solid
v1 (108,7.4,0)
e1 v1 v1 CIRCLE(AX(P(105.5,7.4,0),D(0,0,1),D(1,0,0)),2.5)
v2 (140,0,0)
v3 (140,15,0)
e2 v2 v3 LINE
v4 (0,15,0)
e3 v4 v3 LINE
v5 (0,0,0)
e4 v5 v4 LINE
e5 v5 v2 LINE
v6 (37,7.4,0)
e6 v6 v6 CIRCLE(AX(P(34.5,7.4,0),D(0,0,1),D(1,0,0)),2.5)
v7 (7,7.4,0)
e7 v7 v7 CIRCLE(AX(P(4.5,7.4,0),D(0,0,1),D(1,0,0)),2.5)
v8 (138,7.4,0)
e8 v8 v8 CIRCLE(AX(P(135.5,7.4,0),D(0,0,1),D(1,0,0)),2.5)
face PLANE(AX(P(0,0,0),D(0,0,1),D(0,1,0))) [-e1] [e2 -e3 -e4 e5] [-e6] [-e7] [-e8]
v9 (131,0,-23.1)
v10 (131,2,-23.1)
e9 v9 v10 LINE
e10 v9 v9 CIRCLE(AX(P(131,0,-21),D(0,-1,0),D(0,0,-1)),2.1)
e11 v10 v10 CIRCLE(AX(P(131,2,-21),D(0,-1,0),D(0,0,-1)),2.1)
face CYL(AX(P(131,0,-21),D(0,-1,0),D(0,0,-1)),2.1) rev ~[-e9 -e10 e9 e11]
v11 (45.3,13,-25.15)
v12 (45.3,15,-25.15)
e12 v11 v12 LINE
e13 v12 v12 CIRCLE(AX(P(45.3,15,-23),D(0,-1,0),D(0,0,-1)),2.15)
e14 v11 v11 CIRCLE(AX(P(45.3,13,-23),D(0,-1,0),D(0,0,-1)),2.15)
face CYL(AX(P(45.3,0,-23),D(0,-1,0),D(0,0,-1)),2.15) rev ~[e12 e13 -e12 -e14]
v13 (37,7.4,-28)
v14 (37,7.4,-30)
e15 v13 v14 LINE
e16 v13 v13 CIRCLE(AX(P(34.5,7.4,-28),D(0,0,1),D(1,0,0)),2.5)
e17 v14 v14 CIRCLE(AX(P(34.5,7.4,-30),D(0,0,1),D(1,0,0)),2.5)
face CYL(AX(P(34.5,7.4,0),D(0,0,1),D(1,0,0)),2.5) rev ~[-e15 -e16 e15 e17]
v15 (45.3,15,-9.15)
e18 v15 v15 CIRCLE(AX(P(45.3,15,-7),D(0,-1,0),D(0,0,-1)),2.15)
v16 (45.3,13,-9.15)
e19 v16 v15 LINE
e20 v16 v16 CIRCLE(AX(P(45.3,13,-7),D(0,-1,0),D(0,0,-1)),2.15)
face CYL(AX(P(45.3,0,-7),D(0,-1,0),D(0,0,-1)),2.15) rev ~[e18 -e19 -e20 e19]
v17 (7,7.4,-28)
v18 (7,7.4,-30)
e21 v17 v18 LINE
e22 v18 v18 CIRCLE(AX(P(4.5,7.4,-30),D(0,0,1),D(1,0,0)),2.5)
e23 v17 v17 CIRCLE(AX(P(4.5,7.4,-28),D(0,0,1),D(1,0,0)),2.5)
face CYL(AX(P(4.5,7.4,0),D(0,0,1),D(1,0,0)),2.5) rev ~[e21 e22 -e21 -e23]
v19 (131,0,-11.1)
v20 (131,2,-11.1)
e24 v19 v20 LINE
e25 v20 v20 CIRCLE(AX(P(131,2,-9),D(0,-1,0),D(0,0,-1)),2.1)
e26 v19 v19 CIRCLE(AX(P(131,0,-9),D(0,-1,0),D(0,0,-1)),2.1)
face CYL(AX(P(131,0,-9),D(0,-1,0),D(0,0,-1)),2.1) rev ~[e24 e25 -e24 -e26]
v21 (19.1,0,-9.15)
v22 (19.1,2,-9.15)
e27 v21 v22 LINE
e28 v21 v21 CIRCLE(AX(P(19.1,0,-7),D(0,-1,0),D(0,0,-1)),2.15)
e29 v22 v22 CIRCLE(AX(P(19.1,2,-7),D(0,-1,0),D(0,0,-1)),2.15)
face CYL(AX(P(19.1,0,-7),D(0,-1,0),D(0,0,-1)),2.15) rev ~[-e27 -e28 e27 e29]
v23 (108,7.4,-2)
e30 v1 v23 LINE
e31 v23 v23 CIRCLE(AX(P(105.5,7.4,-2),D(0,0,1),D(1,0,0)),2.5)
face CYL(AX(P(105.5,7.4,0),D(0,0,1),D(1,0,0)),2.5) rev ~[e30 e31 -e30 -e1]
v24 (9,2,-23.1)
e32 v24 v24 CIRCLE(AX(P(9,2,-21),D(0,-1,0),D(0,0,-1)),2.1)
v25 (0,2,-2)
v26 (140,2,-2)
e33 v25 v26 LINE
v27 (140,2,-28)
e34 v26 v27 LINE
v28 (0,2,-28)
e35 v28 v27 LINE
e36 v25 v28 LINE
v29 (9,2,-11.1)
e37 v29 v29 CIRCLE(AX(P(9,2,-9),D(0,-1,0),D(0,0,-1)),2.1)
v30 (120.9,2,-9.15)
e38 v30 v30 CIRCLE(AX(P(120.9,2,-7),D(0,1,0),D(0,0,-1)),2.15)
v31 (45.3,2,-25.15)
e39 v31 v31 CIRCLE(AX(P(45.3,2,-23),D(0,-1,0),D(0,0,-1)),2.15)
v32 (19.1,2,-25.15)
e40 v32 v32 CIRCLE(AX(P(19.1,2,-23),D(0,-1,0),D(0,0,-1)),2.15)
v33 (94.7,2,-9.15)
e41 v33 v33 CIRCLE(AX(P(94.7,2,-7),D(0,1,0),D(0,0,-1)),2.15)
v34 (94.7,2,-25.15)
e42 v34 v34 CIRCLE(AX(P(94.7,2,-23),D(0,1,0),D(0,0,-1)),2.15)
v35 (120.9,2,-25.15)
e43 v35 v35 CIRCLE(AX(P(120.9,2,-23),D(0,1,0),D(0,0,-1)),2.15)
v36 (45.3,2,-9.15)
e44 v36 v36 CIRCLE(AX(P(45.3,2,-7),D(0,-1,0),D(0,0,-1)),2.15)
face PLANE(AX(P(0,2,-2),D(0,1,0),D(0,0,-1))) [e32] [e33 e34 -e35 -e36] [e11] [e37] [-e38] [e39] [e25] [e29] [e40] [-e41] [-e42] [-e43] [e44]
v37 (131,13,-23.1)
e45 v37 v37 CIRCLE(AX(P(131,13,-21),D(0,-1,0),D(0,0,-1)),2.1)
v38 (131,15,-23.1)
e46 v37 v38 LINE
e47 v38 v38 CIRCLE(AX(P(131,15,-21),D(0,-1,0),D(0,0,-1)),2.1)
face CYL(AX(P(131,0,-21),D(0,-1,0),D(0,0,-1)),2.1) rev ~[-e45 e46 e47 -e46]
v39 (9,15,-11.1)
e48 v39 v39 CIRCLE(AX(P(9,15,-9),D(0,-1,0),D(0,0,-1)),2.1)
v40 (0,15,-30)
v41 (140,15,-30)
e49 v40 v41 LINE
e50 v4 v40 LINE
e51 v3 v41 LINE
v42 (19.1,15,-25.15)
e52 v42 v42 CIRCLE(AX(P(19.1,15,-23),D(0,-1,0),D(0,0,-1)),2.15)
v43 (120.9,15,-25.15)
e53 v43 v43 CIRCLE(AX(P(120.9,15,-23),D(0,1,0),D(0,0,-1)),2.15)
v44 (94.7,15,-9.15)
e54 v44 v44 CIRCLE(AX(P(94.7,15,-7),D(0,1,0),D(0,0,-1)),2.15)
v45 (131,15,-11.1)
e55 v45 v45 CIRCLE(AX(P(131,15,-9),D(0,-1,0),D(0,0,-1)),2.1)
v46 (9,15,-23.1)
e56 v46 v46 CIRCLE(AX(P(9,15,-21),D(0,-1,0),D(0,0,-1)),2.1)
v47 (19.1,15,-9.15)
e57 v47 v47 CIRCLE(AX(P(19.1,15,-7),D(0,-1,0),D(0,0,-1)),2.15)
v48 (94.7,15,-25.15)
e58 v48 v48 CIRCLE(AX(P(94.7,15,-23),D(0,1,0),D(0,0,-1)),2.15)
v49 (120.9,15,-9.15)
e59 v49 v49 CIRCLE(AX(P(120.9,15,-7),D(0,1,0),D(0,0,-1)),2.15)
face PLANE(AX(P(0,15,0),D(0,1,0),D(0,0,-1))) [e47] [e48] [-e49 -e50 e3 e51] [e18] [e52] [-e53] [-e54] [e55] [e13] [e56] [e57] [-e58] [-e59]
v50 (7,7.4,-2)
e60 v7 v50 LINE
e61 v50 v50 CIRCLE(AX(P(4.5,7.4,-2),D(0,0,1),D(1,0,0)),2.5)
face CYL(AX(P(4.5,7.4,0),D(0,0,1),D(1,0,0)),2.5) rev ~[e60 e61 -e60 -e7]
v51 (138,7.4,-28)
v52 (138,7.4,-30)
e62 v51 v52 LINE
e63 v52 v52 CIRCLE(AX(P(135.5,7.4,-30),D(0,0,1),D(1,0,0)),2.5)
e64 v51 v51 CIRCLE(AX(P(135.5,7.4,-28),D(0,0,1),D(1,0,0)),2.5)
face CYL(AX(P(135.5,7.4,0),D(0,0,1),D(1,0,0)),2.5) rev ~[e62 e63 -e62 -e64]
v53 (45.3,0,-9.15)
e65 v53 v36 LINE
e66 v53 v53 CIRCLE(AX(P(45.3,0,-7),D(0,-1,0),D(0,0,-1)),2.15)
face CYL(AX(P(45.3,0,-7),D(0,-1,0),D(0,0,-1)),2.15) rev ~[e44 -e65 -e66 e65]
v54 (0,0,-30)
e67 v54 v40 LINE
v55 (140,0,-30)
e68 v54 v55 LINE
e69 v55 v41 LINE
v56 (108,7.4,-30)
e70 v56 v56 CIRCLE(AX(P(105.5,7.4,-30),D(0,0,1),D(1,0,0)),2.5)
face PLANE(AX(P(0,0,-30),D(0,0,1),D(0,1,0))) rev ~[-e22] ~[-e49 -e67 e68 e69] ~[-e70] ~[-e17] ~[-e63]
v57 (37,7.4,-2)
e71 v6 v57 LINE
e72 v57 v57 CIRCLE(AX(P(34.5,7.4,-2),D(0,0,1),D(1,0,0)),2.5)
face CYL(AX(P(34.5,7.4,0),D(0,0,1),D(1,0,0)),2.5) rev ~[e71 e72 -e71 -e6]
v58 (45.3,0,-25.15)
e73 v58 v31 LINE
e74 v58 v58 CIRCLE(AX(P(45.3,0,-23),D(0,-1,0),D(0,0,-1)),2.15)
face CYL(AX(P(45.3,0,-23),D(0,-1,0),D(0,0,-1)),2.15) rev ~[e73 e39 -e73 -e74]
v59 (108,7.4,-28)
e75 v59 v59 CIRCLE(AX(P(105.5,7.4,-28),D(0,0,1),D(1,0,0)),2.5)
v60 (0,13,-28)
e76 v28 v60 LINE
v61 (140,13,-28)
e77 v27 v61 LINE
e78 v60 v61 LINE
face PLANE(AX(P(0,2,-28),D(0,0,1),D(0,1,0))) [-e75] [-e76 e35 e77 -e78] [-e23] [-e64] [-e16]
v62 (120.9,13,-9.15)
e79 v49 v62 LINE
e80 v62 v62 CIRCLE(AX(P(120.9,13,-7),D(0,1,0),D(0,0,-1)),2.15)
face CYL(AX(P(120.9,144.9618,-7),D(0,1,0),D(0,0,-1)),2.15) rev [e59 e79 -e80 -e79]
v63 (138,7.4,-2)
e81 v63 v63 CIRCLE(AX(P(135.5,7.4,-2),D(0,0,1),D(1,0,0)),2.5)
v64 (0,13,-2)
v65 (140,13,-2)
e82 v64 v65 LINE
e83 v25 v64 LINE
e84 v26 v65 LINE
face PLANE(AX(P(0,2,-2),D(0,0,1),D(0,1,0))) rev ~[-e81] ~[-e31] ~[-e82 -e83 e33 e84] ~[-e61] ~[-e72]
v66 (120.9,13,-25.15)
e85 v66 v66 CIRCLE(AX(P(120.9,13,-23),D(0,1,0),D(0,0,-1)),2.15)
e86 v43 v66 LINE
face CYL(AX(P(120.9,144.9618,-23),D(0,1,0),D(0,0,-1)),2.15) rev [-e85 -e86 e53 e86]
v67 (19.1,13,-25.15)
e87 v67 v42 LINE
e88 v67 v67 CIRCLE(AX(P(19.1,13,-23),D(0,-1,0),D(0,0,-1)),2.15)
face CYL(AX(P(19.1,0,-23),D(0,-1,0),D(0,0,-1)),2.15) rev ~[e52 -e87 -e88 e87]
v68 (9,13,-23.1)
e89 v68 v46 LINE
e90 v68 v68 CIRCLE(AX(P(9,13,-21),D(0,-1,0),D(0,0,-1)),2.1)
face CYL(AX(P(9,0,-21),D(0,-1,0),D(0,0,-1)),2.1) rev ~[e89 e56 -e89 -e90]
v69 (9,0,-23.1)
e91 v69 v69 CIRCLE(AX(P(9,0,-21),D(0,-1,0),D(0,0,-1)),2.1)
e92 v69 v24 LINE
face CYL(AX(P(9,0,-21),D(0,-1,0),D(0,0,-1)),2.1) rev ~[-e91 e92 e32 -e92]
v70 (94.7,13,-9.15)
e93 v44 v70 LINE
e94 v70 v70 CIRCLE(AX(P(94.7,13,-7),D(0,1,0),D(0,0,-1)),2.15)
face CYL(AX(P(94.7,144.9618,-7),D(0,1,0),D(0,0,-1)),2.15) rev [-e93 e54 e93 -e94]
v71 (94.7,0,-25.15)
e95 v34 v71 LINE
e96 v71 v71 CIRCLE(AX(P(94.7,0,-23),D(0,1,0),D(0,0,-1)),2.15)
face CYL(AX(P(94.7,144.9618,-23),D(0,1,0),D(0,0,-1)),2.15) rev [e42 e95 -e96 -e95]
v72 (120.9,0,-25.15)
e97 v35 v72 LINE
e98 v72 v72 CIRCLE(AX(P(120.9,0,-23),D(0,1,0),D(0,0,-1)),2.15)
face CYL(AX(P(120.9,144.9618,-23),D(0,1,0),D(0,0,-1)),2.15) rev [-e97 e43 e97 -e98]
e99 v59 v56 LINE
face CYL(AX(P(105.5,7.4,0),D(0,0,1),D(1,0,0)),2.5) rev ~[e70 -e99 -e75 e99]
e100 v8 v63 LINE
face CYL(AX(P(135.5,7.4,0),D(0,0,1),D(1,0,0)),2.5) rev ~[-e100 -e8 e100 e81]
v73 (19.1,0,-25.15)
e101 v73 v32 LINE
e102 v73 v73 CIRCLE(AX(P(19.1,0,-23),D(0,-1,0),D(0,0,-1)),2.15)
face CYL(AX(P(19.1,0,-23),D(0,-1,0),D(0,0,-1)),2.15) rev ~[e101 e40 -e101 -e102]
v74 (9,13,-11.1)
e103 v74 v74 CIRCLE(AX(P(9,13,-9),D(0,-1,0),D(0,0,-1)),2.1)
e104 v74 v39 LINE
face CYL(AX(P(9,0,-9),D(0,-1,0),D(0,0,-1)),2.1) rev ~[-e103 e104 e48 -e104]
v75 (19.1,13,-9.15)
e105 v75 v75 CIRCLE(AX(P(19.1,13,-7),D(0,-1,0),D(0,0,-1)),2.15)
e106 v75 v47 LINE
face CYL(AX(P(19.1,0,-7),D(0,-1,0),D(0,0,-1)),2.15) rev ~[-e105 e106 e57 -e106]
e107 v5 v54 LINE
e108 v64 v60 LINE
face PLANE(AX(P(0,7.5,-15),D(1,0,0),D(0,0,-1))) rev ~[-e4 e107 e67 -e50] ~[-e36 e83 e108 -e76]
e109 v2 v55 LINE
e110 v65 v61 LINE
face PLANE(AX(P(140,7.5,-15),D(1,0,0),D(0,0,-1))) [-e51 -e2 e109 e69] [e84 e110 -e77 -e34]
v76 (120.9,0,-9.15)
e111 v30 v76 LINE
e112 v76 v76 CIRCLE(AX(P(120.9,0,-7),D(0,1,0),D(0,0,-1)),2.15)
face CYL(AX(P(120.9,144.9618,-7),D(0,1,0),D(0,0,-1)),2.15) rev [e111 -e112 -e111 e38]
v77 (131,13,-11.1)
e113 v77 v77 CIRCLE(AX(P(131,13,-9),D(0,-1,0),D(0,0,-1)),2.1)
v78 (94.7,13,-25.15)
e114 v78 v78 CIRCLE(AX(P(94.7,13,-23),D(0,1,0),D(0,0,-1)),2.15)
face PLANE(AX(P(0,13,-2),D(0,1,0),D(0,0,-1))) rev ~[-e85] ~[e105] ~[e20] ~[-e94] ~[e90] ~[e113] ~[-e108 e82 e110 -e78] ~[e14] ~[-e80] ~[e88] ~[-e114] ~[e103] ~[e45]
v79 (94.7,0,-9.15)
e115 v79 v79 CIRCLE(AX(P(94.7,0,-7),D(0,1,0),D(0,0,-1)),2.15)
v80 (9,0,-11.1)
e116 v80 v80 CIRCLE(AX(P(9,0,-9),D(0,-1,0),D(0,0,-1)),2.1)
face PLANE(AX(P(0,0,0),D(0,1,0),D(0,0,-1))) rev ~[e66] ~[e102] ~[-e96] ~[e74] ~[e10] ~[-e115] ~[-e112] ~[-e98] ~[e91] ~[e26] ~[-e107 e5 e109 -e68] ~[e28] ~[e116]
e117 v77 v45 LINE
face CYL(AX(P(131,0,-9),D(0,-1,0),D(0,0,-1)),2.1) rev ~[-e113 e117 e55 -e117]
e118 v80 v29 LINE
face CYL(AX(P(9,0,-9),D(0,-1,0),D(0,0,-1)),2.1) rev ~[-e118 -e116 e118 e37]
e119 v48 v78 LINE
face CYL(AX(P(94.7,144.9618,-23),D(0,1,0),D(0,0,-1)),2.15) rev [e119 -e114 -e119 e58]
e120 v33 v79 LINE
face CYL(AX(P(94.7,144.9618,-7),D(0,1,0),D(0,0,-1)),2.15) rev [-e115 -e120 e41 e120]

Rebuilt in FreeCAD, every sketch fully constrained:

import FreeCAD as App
import Part
import Sketcher
Q = App.Units.Quantity


def add_polygon(sketch, points):
    """Adds a closed chain of lines whose ends are joined by coincident constraints."""
    first, n = sketch.GeometryCount, len(points)
    for a, b in zip(points, points[1:] + points[:1]):
        sketch.addGeometry(Part.LineSegment(App.Vector(*a, 0), App.Vector(*b, 0)), False)
    for i in range(n):
        sketch.addConstraint(Sketcher.Constraint("Coincident", first + i, 2, first + (i + 1) % n, 1))

doc = App.newDocument("Part")
params = doc.addObject("Spreadsheet::Sheet", "Params")
for row, (alias, value) in enumerate([
    ("sketch1_width", "15 mm"),
    ("sketch1_width2", "11 mm"),
    ("sketch1_height", "30 mm"),
    ("sketch1_height2", "26 mm"),
    ("pad1_length", "140 mm"),
    ("sketch2_diameter", "4.3 mm"),
    ("sketch3_diameter", "4.3 mm"),
    ("sketch4_diameter", "4.2 mm"),
    ("sketch5_diameter", "4.2 mm"),
    ("sketch6_diameter", "5 mm"),
], start=1):
    params.set(f"A{row}", alias)
    params.set(f"B{row}", "=" + value)
    params.setAlias(f"B{row}", alias)

body = doc.addObject("PartDesign::Body", "Body")

# Sketch on YZ plane
sketch1 = body.newObject("Sketcher::SketchObject", "Sketch")
sketch1.AttachmentSupport = (doc.getObject("YZ_Plane"), [""])
sketch1.MapMode = "FlatFace"
add_polygon(sketch1, [(15, 0), (0, 0), (0, -30), (15, -30)])  # lines 0-3
add_polygon(sketch1, [(2, -28), (2, -2), (13, -2), (13, -28)])  # lines 4-7
sketch1.addConstraint([
    Sketcher.Constraint("Horizontal", 0),
    Sketcher.Constraint("Vertical", 1),
    Sketcher.Constraint("Horizontal", 2),
    Sketcher.Constraint("Vertical", 3),
    Sketcher.Constraint("Vertical", 4),
    Sketcher.Constraint("Horizontal", 5),
    Sketcher.Constraint("Vertical", 6),
    Sketcher.Constraint("Horizontal", 7),
    Sketcher.Constraint("Coincident", 0, 2, -1, 1),
    Sketcher.Constraint("DistanceX", 0, 2, 0, 1, Q("15 mm")),
    Sketcher.Constraint("DistanceX", 5, 1, 5, 2, Q("11 mm")),
    Sketcher.Constraint("DistanceY", 1, 2, 1, 1, Q("30 mm")),
    Sketcher.Constraint("DistanceY", 4, 1, 4, 2, Q("26 mm")),
    Sketcher.Constraint("DistanceX", -1, 1, 4, 2, Q("2 mm")),
    Sketcher.Constraint("DistanceY", 4, 2, -1, 1, Q("2 mm")),
])
sketch1.setExpression("Constraints[17]", "Params.sketch1_width")
sketch1.setExpression("Constraints[18]", "Params.sketch1_width2")
sketch1.setExpression("Constraints[19]", "Params.sketch1_height")
sketch1.setExpression("Constraints[20]", "Params.sketch1_height2")
pad1 = body.newObject("PartDesign::Pad", "Pad")
pad1.Profile = sketch1
pad1.setExpression("Length", "Params.pad1_length")

# Sketch on XZ plane
sketch2 = body.newObject("Sketcher::SketchObject", "Sketch001")
sketch2.AttachmentSupport = (doc.getObject("XZ_Plane"), [""])
sketch2.MapMode = "FlatFace"
sketch2.addGeometry([
    Part.Circle(App.Vector(19.1, -7, 0), App.Vector(0, 0, 1), 2.15),
    Part.Circle(App.Vector(19.1, -23, 0), App.Vector(0, 0, 1), 2.15),
    Part.Circle(App.Vector(45.3, -23, 0), App.Vector(0, 0, 1), 2.15),
    Part.Circle(App.Vector(45.3, -7, 0), App.Vector(0, 0, 1), 2.15),
], False)
sketch2.addConstraint([
    Sketcher.Constraint("Equal", 0, 1),
    Sketcher.Constraint("Equal", 1, 2),
    Sketcher.Constraint("Equal", 2, 3),
    Sketcher.Constraint("Horizontal", 1, 3, 2, 3),
    Sketcher.Constraint("Horizontal", 0, 3, 3, 3),
    Sketcher.Constraint("Vertical", 0, 3, 1, 3),
    Sketcher.Constraint("Vertical", 2, 3, 3, 3),
    Sketcher.Constraint("Diameter", 0, Q("4.3 mm")),
    Sketcher.Constraint("DistanceY", 0, 3, -1, 1, Q("7 mm")),
    Sketcher.Constraint("DistanceY", 1, 3, -1, 1, Q("23 mm")),
    Sketcher.Constraint("DistanceX", -1, 1, 0, 3, Q("19.1 mm")),
    Sketcher.Constraint("DistanceX", -1, 1, 2, 3, Q("45.3 mm")),
])
sketch2.setExpression("Constraints[7]", "Params.sketch2_diameter")
pocket1 = body.newObject("PartDesign::Pocket", "Pocket")
pocket1.Profile = sketch2
pocket1.Type = "ThroughAll"

# Sketch on XZ plane
sketch3 = body.newObject("Sketcher::SketchObject", "Sketch002")
sketch3.AttachmentSupport = (doc.getObject("XZ_Plane"), [""])
sketch3.MapMode = "FlatFace"
sketch3.addGeometry([
    Part.Circle(App.Vector(94.7, -7, 0), App.Vector(0, 0, 1), 2.15),
    Part.Circle(App.Vector(120.9, -7, 0), App.Vector(0, 0, 1), 2.15),
    Part.Circle(App.Vector(120.9, -23, 0), App.Vector(0, 0, 1), 2.15),
    Part.Circle(App.Vector(94.7, -23, 0), App.Vector(0, 0, 1), 2.15),
], False)
sketch3.addConstraint([
    Sketcher.Constraint("Equal", 0, 1),
    Sketcher.Constraint("Equal", 1, 2),
    Sketcher.Constraint("Equal", 2, 3),
    Sketcher.Constraint("Horizontal", 0, 3, 1, 3),
    Sketcher.Constraint("Horizontal", 2, 3, 3, 3),
    Sketcher.Constraint("Vertical", 1, 3, 2, 3),
    Sketcher.Constraint("Vertical", 0, 3, 3, 3),
    Sketcher.Constraint("Diameter", 0, Q("4.3 mm")),
    Sketcher.Constraint("DistanceY", 0, 3, -1, 1, Q("7 mm")),
    Sketcher.Constraint("DistanceY", 2, 3, -1, 1, Q("23 mm")),
    Sketcher.Constraint("DistanceX", -1, 1, 0, 3, Q("94.7 mm")),
    Sketcher.Constraint("DistanceX", -1, 1, 1, 3, Q("120.9 mm")),
])
sketch3.setExpression("Constraints[7]", "Params.sketch3_diameter")
pocket2 = body.newObject("PartDesign::Pocket", "Pocket001")
pocket2.Profile = sketch3
pocket2.Type = "ThroughAll"
pocket2.Midplane = True

# Sketch on XZ plane
sketch4 = body.newObject("Sketcher::SketchObject", "Sketch003")
sketch4.AttachmentSupport = (doc.getObject("XZ_Plane"), [""])
sketch4.MapMode = "FlatFace"
sketch4.addGeometry([
    Part.Circle(App.Vector(131, -9, 0), App.Vector(0, 0, 1), 2.1),
    Part.Circle(App.Vector(131, -21, 0), App.Vector(0, 0, 1), 2.1),
], False)
sketch4.addConstraint([
    Sketcher.Constraint("Equal", 0, 1),
    Sketcher.Constraint("Vertical", 0, 3, 1, 3),
    Sketcher.Constraint("Diameter", 0, Q("4.2 mm")),
    Sketcher.Constraint("DistanceX", -1, 1, 0, 3, Q("131 mm")),
    Sketcher.Constraint("DistanceY", 0, 3, -1, 1, Q("9 mm")),
    Sketcher.Constraint("DistanceY", 1, 3, -1, 1, Q("21 mm")),
])
sketch4.setExpression("Constraints[2]", "Params.sketch4_diameter")
pocket3 = body.newObject("PartDesign::Pocket", "Pocket002")
pocket3.Profile = sketch4
pocket3.Type = "ThroughAll"

# Sketch on XZ plane
sketch5 = body.newObject("Sketcher::SketchObject", "Sketch004")
sketch5.AttachmentSupport = (doc.getObject("XZ_Plane"), [""])
sketch5.MapMode = "FlatFace"
sketch5.addGeometry([
    Part.Circle(App.Vector(9, -9, 0), App.Vector(0, 0, 1), 2.1),
    Part.Circle(App.Vector(9, -21, 0), App.Vector(0, 0, 1), 2.1),
], False)
sketch5.addConstraint([
    Sketcher.Constraint("Equal", 0, 1),
    Sketcher.Constraint("Vertical", 0, 3, 1, 3),
    Sketcher.Constraint("Diameter", 0, Q("4.2 mm")),
    Sketcher.Constraint("DistanceX", -1, 1, 0, 3, Q("9 mm")),
    Sketcher.Constraint("DistanceY", 0, 3, -1, 1, Q("9 mm")),
    Sketcher.Constraint("DistanceY", 1, 3, -1, 1, Q("21 mm")),
])
sketch5.setExpression("Constraints[2]", "Params.sketch5_diameter")
pocket4 = body.newObject("PartDesign::Pocket", "Pocket003")
pocket4.Profile = sketch5
pocket4.Type = "ThroughAll"

# Sketch on XY plane
sketch6 = body.newObject("Sketcher::SketchObject", "Sketch005")
sketch6.AttachmentSupport = (doc.getObject("XY_Plane"), [""])
sketch6.MapMode = "FlatFace"
sketch6.addGeometry([
    Part.Circle(App.Vector(4.5, 7.4, 0), App.Vector(0, 0, 1), 2.5),
    Part.Circle(App.Vector(34.5, 7.4, 0), App.Vector(0, 0, 1), 2.5),
    Part.Circle(App.Vector(105.5, 7.4, 0), App.Vector(0, 0, 1), 2.5),
    Part.Circle(App.Vector(135.5, 7.4, 0), App.Vector(0, 0, 1), 2.5),
], False)
sketch6.addConstraint([
    Sketcher.Constraint("Equal", 0, 1),
    Sketcher.Constraint("Equal", 1, 2),
    Sketcher.Constraint("Equal", 2, 3),
    Sketcher.Constraint("Horizontal", 0, 3, 1, 3),
    Sketcher.Constraint("Horizontal", 1, 3, 2, 3),
    Sketcher.Constraint("Horizontal", 2, 3, 3, 3),
    Sketcher.Constraint("Diameter", 0, Q("5 mm")),
    Sketcher.Constraint("DistanceX", 0, 3, 1, 3, Q("30 mm")),
    Sketcher.Constraint("DistanceX", 1, 3, 2, 3, Q("71 mm")),
    Sketcher.Constraint("DistanceX", 2, 3, 3, 3, Q("30 mm")),
    Sketcher.Constraint("DistanceX", -1, 1, 0, 3, Q("4.5 mm")),
    Sketcher.Constraint("DistanceY", -1, 1, 0, 3, Q("7.4 mm")),
])
sketch6.setExpression("Constraints[6]", "Params.sketch6_diameter")
pocket5 = body.newObject("PartDesign::Pocket", "Pocket004")
pocket5.Profile = sketch6
pocket5.Type = "ThroughAll"

doc.recompute()
